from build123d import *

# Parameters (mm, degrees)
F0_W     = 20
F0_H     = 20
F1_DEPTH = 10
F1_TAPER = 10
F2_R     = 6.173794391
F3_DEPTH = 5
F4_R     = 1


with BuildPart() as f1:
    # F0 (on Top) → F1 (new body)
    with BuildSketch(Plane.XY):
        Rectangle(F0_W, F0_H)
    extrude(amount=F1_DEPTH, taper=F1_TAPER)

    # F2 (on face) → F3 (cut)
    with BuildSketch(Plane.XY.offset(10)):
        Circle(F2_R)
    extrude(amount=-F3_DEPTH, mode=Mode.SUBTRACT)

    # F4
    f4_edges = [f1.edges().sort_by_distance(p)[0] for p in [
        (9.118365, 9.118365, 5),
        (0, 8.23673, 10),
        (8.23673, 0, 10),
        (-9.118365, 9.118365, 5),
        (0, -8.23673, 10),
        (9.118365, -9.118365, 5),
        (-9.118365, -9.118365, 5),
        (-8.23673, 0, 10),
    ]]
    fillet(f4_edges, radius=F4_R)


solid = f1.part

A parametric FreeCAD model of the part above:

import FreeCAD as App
import Part
import Sketcher

V = App.Vector


def edges_at(feature, points):
    """Names of the edges that pass closest to the given points."""
    edges = feature.Shape.Edges
    near = lambda p: min(range(len(edges)), key=lambda i: edges[i].distToShape(Part.Vertex(*p))[0])
    return sorted({f"Edge{near(p) + 1}" for p in points})

doc = App.newDocument("Part")
body = doc.addObject("PartDesign::Body", "Body")

# Sketch on XY plane
sketch1 = body.newObject("Sketcher::SketchObject", "Sketch")
sketch1.AttachmentSupport = (doc.getObject("XY_Plane"), [""])
sketch1.MapMode = "FlatFace"
sketch1.addGeometry(Part.LineSegment(V(-10, 10, 0), V(-10, -10, 0)), False)
sketch1.addGeometry(Part.LineSegment(V(-10, -10, 0), V(10, -10, 0)), False)
sketch1.addGeometry(Part.LineSegment(V(10, -10, 0), V(10, 10, 0)), False)
sketch1.addGeometry(Part.LineSegment(V(10, 10, 0), V(-10, 10, 0)), False)
sketch1.addConstraint(Sketcher.Constraint("Coincident", 0, 2, 1, 1))
sketch1.addConstraint(Sketcher.Constraint("Coincident", 1, 2, 2, 1))
sketch1.addConstraint(Sketcher.Constraint("Coincident", 2, 2, 3, 1))
sketch1.addConstraint(Sketcher.Constraint("Coincident", 3, 2, 0, 1))
sketch1.addConstraint(Sketcher.Constraint("Vertical", 0))
sketch1.addConstraint(Sketcher.Constraint("Horizontal", 1))
sketch1.addConstraint(Sketcher.Constraint("Vertical", 2))
sketch1.addConstraint(Sketcher.Constraint("Horizontal", 3))
sketch1.addConstraint(Sketcher.Constraint("Symmetric", 0, 2, 2, 2, -1, 1))
sketch1.addConstraint(Sketcher.Constraint("Equal", 3, 0))
sketch1.addConstraint(Sketcher.Constraint("DistanceX", 1, 1, 1, 2, 20.0))
pad1 = body.newObject("PartDesign::Pad", "Pad")
pad1.Profile = sketch1
pad1.Length = 10
pad1.TaperAngle = -10

# Sketch on XY plane
sketch2 = body.newObject("Sketcher::SketchObject", "Sketch001")
sketch2.AttachmentSupport = (doc.getObject("XY_Plane"), [""])
sketch2.MapMode = "FlatFace"
sketch2.AttachmentOffset = App.Placement(V(0, 0, 10), App.Rotation())
sketch2.addGeometry(Part.Circle(V(0, 0, 0), V(0, 0, 1), 6), False)
sketch2.addConstraint(Sketcher.Constraint("Coincident", 0, 3, -1, 1))
sketch2.addConstraint(Sketcher.Constraint("Diameter", 0, 12.347589))
pocket1 = body.newObject("PartDesign::Pocket", "Pocket")
pocket1.Profile = sketch2
pocket1.Length = 5
doc.recompute()

fillet = body.newObject("PartDesign::Fillet", "Fillet")
fillet.Base = (pocket1, edges_at(pocket1, [
    (9.118, 9.118, 5),
    (0, 8.237, 10),
    (8.237, 0, 10),
    (-9.118, 9.118, 5),
    (0, -8.237, 10),
    (9.118, -9.118, 5),
    (-9.118, -9.118, 5),
    (-8.237, 0, 10),
]))
fillet.Radius = 1

doc.recompute()
